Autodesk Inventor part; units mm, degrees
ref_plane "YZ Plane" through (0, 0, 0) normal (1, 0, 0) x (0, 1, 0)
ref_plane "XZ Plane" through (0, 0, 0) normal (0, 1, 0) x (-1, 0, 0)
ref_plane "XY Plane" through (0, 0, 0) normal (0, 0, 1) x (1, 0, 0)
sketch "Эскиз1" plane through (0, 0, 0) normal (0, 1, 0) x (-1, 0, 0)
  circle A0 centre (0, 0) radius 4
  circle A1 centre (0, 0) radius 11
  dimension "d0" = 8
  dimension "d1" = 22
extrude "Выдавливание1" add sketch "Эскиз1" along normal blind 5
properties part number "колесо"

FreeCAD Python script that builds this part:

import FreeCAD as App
import Part
import Sketcher

doc = App.newDocument("Part")
body = doc.addObject("PartDesign::Body", "Body")

# Sketch on XZ plane
sketch1 = body.newObject("Sketcher::SketchObject", "Sketch")
sketch1.AttachmentSupport = (doc.getObject("XZ_Plane"), [""])
sketch1.MapMode = "FlatFace"
sketch1.addGeometry(Part.Circle(App.Vector(0, 0, 0), App.Vector(0, 0, 1), 11), False)
sketch1.addGeometry(Part.Circle(App.Vector(0, 0, 0), App.Vector(0, 0, 1), 4), False)
sketch1.addConstraint(Sketcher.Constraint("Coincident", 0, 3, -1, 1))
sketch1.addConstraint(Sketcher.Constraint("Coincident", 1, 3, -1, 1))
sketch1.addConstraint(Sketcher.Constraint("Diameter", 0, 22.0))
sketch1.addConstraint(Sketcher.Constraint("Diameter", 1, 8.0))
pad1 = body.newObject("PartDesign::Pad", "Pad")
pad1.Profile = sketch1
pad1.Length = 5
pad1.Reversed = True

doc.recompute()
